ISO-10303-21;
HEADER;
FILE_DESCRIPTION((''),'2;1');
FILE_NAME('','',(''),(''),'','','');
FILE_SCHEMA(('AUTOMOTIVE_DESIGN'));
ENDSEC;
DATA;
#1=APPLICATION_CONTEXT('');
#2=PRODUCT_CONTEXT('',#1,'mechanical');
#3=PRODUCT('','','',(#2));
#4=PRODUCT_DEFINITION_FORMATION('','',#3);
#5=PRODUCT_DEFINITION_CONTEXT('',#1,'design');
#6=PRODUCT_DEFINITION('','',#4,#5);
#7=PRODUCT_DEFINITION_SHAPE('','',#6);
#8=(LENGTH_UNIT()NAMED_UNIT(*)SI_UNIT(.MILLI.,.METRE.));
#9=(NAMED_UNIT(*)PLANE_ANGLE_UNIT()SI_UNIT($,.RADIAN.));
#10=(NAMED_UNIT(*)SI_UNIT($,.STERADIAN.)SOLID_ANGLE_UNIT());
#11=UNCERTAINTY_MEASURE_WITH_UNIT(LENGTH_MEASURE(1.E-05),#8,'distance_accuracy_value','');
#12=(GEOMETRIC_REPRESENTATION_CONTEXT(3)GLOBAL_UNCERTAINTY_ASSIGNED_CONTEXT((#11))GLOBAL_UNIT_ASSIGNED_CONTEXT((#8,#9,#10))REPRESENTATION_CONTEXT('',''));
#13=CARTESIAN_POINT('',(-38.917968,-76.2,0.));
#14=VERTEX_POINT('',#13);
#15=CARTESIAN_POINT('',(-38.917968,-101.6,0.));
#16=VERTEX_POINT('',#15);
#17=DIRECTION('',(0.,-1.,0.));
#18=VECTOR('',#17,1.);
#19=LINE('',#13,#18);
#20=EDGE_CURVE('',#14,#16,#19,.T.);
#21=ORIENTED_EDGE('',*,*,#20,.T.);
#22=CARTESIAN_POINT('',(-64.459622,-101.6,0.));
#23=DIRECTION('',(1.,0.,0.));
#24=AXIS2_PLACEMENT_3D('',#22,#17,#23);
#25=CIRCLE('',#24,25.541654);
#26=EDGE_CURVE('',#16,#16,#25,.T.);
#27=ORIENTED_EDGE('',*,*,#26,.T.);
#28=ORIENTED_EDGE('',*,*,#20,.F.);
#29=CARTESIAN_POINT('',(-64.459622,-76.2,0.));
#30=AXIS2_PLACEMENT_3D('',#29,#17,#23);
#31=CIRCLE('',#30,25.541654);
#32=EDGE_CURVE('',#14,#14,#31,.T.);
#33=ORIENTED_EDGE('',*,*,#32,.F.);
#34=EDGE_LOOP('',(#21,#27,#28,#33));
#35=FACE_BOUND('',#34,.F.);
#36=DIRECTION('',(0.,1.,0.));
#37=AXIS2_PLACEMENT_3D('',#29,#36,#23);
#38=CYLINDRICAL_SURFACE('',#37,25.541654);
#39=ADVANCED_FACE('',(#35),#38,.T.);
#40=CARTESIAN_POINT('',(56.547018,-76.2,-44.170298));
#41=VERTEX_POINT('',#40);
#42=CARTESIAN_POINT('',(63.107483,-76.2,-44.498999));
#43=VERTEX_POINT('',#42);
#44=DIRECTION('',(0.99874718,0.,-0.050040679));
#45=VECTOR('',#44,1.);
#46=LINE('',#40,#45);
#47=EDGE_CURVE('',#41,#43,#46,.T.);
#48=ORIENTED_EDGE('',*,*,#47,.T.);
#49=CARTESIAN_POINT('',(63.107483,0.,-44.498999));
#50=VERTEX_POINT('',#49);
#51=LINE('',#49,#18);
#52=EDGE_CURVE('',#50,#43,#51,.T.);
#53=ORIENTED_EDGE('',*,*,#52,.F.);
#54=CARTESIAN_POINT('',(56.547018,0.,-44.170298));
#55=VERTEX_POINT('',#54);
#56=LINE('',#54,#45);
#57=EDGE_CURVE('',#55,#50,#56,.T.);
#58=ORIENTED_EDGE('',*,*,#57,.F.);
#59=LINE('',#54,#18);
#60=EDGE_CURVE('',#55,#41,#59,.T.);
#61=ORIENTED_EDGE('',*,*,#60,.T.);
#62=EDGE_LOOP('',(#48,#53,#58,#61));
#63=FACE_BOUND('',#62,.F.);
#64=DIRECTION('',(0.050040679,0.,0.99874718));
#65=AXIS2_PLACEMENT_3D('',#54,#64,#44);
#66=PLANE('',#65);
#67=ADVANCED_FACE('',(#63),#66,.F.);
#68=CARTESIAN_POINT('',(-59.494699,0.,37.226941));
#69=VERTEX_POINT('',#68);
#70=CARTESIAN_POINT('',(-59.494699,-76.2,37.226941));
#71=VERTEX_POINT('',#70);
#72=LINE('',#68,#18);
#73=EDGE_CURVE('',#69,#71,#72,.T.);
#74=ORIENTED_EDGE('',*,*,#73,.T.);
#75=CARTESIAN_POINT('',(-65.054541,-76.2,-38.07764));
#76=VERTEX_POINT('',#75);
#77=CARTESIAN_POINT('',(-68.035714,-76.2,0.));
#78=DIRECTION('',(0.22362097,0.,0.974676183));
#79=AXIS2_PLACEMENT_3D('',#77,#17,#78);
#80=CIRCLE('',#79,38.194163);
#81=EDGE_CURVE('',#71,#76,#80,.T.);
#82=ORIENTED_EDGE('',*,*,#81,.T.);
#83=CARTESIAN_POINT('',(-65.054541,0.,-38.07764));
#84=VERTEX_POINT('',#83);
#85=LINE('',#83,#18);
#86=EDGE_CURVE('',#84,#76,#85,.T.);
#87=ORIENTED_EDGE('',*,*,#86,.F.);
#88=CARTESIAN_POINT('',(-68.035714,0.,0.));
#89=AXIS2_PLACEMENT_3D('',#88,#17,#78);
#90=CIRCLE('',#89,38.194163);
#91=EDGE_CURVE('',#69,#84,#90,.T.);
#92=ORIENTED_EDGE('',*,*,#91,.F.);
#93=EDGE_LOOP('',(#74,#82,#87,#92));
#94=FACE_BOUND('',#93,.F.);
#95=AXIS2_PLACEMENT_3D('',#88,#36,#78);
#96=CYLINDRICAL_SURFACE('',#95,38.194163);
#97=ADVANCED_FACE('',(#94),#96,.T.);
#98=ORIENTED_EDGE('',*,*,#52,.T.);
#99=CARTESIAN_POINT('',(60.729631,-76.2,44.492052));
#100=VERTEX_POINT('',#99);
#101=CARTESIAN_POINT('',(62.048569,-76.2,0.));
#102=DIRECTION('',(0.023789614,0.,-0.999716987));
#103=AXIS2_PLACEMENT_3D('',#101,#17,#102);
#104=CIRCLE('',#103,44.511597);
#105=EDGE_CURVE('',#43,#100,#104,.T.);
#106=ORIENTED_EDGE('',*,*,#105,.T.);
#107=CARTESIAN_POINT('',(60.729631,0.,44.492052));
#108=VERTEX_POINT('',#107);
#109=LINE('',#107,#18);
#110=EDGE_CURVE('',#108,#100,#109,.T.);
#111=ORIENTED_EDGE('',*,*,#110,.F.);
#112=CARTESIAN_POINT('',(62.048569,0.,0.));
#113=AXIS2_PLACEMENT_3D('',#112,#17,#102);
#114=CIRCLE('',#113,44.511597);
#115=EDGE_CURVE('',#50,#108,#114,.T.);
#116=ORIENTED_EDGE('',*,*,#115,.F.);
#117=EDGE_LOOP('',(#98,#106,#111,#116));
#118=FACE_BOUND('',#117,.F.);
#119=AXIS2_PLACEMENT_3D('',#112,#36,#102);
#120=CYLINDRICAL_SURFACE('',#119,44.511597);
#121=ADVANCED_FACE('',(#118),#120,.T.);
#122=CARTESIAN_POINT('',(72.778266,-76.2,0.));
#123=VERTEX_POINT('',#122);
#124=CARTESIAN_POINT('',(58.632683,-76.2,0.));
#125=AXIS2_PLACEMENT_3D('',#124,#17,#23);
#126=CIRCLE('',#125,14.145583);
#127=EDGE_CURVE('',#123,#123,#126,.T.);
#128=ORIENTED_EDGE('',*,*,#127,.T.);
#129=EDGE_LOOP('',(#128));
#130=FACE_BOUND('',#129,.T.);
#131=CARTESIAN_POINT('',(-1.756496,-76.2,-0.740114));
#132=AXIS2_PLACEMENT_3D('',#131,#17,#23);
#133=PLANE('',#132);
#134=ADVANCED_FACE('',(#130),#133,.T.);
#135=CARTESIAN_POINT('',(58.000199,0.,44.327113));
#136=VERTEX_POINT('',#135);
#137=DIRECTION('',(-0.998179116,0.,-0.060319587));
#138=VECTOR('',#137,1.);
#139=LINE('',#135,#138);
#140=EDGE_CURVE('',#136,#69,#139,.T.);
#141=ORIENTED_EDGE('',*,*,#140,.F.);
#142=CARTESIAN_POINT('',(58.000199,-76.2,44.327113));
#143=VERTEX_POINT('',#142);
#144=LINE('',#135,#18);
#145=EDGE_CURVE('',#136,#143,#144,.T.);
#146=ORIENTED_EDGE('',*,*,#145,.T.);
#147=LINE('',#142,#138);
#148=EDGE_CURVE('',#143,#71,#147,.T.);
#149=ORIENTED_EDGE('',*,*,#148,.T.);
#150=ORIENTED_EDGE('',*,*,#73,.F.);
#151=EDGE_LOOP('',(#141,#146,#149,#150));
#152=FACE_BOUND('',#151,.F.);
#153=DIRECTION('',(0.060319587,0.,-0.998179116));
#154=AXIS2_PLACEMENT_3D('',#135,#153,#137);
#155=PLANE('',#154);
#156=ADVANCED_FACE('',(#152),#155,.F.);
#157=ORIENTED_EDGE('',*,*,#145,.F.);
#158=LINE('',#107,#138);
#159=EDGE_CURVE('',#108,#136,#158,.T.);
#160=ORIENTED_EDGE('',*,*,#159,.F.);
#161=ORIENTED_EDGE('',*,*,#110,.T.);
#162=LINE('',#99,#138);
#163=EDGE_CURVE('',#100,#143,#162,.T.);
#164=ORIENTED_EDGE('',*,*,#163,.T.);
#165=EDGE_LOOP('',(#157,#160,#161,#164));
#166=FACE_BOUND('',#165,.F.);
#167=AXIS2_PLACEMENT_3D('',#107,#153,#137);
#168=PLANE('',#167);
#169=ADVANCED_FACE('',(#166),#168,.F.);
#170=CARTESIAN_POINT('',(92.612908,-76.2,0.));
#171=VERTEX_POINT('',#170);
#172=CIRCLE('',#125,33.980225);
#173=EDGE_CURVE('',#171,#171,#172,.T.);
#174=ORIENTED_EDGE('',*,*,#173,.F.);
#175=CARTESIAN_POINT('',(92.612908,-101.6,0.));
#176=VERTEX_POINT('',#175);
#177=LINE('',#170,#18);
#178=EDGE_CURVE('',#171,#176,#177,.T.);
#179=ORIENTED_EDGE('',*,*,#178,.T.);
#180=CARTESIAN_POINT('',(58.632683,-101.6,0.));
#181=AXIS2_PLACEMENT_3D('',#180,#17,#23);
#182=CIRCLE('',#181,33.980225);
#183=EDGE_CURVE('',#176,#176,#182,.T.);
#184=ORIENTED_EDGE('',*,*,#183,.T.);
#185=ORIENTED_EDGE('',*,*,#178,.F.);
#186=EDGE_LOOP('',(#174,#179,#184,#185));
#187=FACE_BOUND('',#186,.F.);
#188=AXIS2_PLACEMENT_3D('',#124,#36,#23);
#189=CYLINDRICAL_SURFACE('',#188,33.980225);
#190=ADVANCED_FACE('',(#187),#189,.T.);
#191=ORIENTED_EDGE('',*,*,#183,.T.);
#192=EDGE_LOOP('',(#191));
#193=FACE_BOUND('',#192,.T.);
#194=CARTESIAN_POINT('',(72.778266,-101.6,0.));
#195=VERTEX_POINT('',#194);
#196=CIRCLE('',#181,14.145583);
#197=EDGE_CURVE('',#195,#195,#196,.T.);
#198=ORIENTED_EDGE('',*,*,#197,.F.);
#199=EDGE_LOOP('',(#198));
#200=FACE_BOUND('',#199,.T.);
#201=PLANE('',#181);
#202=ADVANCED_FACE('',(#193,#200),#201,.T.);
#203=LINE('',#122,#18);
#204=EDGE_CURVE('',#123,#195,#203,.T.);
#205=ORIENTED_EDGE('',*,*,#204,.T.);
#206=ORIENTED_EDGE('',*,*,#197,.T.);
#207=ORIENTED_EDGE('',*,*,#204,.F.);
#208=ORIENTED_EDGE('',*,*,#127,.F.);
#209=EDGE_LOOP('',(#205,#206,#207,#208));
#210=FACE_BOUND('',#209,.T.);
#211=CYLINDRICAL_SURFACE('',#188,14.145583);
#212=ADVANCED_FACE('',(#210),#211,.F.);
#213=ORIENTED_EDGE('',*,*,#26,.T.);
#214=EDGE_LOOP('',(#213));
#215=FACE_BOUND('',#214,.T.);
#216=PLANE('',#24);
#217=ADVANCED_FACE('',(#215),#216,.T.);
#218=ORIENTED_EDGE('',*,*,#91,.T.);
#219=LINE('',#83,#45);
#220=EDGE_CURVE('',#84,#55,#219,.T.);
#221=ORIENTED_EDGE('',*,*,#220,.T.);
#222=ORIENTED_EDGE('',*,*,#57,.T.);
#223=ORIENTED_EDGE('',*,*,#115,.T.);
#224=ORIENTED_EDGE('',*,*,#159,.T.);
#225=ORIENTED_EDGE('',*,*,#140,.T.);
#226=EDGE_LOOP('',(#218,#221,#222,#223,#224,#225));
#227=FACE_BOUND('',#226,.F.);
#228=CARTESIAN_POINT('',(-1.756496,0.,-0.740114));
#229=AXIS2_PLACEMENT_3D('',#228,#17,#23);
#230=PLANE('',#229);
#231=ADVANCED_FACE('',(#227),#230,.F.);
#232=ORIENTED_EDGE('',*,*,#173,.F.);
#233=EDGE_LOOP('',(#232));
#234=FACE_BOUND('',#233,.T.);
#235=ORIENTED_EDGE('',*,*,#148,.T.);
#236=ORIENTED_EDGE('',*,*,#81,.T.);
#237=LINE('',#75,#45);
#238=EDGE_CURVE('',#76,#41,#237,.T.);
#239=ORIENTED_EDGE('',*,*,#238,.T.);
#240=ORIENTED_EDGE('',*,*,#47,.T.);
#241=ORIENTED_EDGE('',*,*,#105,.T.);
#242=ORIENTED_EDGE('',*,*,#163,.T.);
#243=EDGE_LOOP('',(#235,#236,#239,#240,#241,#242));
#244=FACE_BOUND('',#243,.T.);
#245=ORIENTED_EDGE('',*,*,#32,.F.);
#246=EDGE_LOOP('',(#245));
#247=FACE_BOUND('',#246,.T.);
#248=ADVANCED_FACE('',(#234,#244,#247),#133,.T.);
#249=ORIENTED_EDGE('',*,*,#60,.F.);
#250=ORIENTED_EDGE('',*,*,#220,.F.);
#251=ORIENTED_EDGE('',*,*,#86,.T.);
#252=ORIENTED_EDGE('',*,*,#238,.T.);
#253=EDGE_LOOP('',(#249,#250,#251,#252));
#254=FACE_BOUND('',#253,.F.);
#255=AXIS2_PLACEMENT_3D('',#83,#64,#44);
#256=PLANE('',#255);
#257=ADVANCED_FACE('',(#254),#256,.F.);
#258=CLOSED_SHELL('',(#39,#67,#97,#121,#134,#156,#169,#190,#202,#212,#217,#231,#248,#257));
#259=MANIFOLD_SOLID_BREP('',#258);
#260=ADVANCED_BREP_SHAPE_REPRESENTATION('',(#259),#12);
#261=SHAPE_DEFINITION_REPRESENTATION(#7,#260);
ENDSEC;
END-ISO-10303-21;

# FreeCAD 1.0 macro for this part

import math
import FreeCAD as App
import Part
import Sketcher

V = App.Vector
Q = App.Units.Quantity

doc = App.newDocument("Part")
body = doc.addObject("PartDesign::Body", "Body")

sketch1 = body.newObject("Sketcher::SketchObject", "Sketch")
sketch1.AttachmentSupport = (doc.getObject("XZ_Plane"), [""])
sketch1.MapMode = "FlatFace"
sketch1.addGeometry([
    Part.LineSegment(V(-65.054541, -38.07764, 0), V(56.547018, -44.170297, 0)),
    Part.LineSegment(V(56.547018, -44.170297, 0), V(63.107483, -44.498999, 0)),
    Part.ArcOfCircle(Part.Circle(V(62.048569, 0, 0), V(0, 0, 1), 44.511597), math.radians(-88.636827), math.radians(91.697999)),
    Part.LineSegment(V(60.729631, 44.492052, 0), V(58.000199, 44.327113, 0)),
    Part.LineSegment(V(58.000199, 44.327113, 0), V(-59.494699, 37.226941, 0)),
    Part.ArcOfCircle(Part.Circle(V(-68.035714, 0, 0), V(0, 0, 1), 38.194163), math.radians(77.0782), math.radians(274.476668)),
], False)
sketch1.addConstraint([
    Sketcher.Constraint("Coincident", 0, 2, 1, 1),
    Sketcher.Constraint("Coincident", 1, 2, 2, 1),
    Sketcher.Constraint("Coincident", 2, 2, 3, 1),
    Sketcher.Constraint("Coincident", 3, 2, 4, 1),
    Sketcher.Constraint("Coincident", 4, 2, 5, 1),
    Sketcher.Constraint("Coincident", 5, 2, 0, 1),
    Sketcher.Constraint("PointOnObject", 2, 3, -1),
    Sketcher.Constraint("PointOnObject", 5, 3, -1),
    Sketcher.Constraint("Radius", 2, 44.511597),
    Sketcher.Constraint("Radius", 5, 38.194163),
    Sketcher.Constraint("DistanceY", 1, 2, -1, 1, 44.498999),
    Sketcher.Constraint("DistanceX", -1, 1, 3, 2, 58.000199),
    Sketcher.Constraint("DistanceX", 4, 2, -1, 1, 59.494699),
    Sketcher.Constraint("DistanceY", 1, 2, 0, 2, 0.328702),
    Sketcher.Constraint("Distance", 3, 2.734411),
    Sketcher.Constraint("DistanceX", -1, 1, 2, 3, 62.048569),
    Sketcher.Constraint("DistanceY", -1, 1, 4, 2, 37.226941),
    Sketcher.Constraint("DistanceX", 5, 2, -1, 1, 65.054541),
    Sketcher.Constraint("DistanceX", 0, 2, 2, 3, 5.501551),
    Sketcher.Constraint("DistanceY", 3, 2, 2, 2, 0.164939),
])
pad1 = body.newObject("PartDesign::Pad", "Pad")
pad1.Profile = sketch1
pad1.Length = Q("3 in")

sketch2 = body.newObject("Sketcher::SketchObject", "Sketch001")
sketch2.AttachmentSupport = (doc.getObject("XZ_Plane"), [""])
sketch2.MapMode = "FlatFace"
sketch2.AttachmentOffset = App.Placement(V(0, 0, 3 * 25.4), App.Rotation())
sketch2.addGeometry([
    Part.Circle(V(58.632683, 0, 0), V(0, 0, 1), 33.980225),
    Part.Circle(V(58.632683, 0, 0), V(0, 0, 1), 14.145583),
    Part.Circle(V(-64.459622, 0, 0), V(0, 0, 1), 25.541654),
], False)
sketch2.addConstraint([
    Sketcher.Constraint("Coincident", 1, 3, 0, 3),
    Sketcher.Constraint("PointOnObject", 0, 3, -1),
    Sketcher.Constraint("PointOnObject", 2, 3, -1),
    Sketcher.Constraint("Diameter", 0, 67.96045),
    Sketcher.Constraint("Diameter", 1, 28.291165),
    Sketcher.Constraint("Diameter", 2, 51.083308),
    Sketcher.Constraint("DistanceX", 2, 3, -1, 1, 64.459622),
    Sketcher.Constraint("DistanceX", -1, 1, 0, 3, 58.632683),
])
pad2 = body.newObject("PartDesign::Pad", "Pad001")
pad2.Profile = sketch2
pad2.Length = Q("1 in")

doc.recompute()
